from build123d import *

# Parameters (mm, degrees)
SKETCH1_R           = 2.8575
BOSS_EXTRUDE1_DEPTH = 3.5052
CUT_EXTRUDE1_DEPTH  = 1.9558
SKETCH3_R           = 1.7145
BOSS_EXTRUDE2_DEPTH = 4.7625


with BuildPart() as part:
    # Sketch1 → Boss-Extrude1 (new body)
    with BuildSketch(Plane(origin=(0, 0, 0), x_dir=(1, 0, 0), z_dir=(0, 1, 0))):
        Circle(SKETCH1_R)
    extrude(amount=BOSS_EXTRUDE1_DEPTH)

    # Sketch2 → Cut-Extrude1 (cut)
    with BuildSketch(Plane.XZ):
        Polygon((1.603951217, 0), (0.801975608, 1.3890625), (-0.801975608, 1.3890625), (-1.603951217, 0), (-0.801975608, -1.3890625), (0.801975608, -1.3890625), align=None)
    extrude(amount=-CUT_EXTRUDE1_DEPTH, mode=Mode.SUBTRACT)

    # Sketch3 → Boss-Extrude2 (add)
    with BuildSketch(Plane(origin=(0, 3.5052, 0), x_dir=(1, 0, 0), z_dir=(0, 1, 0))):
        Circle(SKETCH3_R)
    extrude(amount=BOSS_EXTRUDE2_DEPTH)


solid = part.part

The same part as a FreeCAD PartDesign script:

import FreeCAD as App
import Part
import Sketcher

V = App.Vector
Q = App.Units.Quantity

doc = App.newDocument("Part")
body = doc.addObject("PartDesign::Body", "Body")

sketch1 = doc.addObject("Sketcher::SketchObject", "Sketch")
body.addObject(sketch1)
sketch1.AttachmentSupport = (doc.XZ_Plane, [""])
sketch1.MapMode = "FlatFace"
sketch1.addGeometry(Part.Circle(V(0, 0, 0), V(0, 0, 1), 2.9), False)
sketch1.addConstraint([
    Sketcher.Constraint("Coincident", 0, 3, -1, 1),
    Sketcher.Constraint("Diameter", 0, Q("0.225 in")),
])
pad1 = doc.addObject("PartDesign::Pad", "Pad")
body.addObject(pad1)
pad1.Profile = sketch1
pad1.Length = Q("0.138 in")
pad1.Reversed = True

sketch2 = doc.addObject("Sketcher::SketchObject", "Sketch001")
body.addObject(sketch2)
sketch2.AttachmentSupport = (doc.XZ_Plane, [""])
sketch2.MapMode = "FlatFace"
sketch2.addGeometry([
    Part.LineSegment(V(1.6, 0, 0), V(0.8, 1.4, 0)),
    Part.LineSegment(V(0.8, 1.4, 0), V(-0.8, 1.4, 0)),
    Part.LineSegment(V(-0.8, 1.4, 0), V(-1.6, 0, 0)),
    Part.LineSegment(V(-1.6, 0, 0), V(-0.8, -1.4, 0)),
    Part.LineSegment(V(-0.8, -1.4, 0), V(0.8, -1.4, 0)),
    Part.LineSegment(V(0.8, -1.4, 0), V(1.6, 0, 0)),
], False)
sketch2.addConstraint([
    Sketcher.Constraint("Coincident", 0, 2, 1, 1),
    Sketcher.Constraint("Coincident", 1, 2, 2, 1),
    Sketcher.Constraint("Coincident", 2, 2, 3, 1),
    Sketcher.Constraint("Coincident", 3, 2, 4, 1),
    Sketcher.Constraint("Coincident", 4, 2, 5, 1),
    Sketcher.Constraint("Coincident", 5, 2, 0, 1),
    Sketcher.Constraint("Horizontal", 1),
    Sketcher.Constraint("Horizontal", 4),
    Sketcher.Constraint("Symmetric", 0, 2, 3, 2, -1, 1),
    Sketcher.Constraint("Symmetric", 2, 2, 5, 2, -1, 1),
    Sketcher.Constraint("PointOnObject", 2, 2, -1),
    Sketcher.Constraint("Parallel", 2, 5),
    Sketcher.Constraint("Vertical", 1, 2, 3, 2),
    Sketcher.Constraint("Angle", 0, Q("120 deg")),
    Sketcher.Constraint("DistanceY", 3, 2, 1, 2, Q("0.109375 in")),
    Sketcher.Constraint("DistanceX", 1, 2, 1, 1, 1.603951),
])
pocket1 = doc.addObject("PartDesign::Pocket", "Pocket")
body.addObject(pocket1)
pocket1.Profile = sketch2
pocket1.Length = Q("0.077 in")

sketch3 = doc.addObject("Sketcher::SketchObject", "Sketch002")
body.addObject(sketch3)
sketch3.AttachmentSupport = (doc.XZ_Plane, [""])
sketch3.MapMode = "FlatFace"
sketch3.AttachmentOffset = App.Placement(V(0, 0, -0.138 * 25.4), App.Rotation())
sketch3.addGeometry(Part.Circle(V(0, 0, 0), V(0, 0, 1), 1.7), False)
sketch3.addConstraint([
    Sketcher.Constraint("Coincident", 0, 3, -1, 1),
    Sketcher.Constraint("Diameter", 0, Q("0.135 in")),
])
pad2 = doc.addObject("PartDesign::Pad", "Pad001")
body.addObject(pad2)
pad2.Profile = sketch3
pad2.Length = Q("0.1875 in")
pad2.Reversed = True

doc.recompute()
